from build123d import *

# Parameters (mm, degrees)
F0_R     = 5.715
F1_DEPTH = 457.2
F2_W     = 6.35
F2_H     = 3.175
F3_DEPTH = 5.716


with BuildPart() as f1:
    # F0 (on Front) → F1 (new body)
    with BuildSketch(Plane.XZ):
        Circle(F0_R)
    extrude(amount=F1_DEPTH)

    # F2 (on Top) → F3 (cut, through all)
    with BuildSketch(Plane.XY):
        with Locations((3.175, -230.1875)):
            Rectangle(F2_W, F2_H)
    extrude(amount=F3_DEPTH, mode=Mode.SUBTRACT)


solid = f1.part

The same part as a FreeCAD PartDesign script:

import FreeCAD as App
import Part
import Sketcher
Q = App.Units.Quantity


def add_polygon(sketch, points):
    """Adds a closed chain of lines whose ends are joined by coincident constraints."""
    first, n = sketch.GeometryCount, len(points)
    for a, b in zip(points, points[1:] + points[:1]):
        sketch.addGeometry(Part.LineSegment(App.Vector(*a, 0), App.Vector(*b, 0)), False)
    for i in range(n):
        sketch.addConstraint(Sketcher.Constraint("Coincident", first + i, 2, first + (i + 1) % n, 1))

doc = App.newDocument("Part")
body = doc.addObject("PartDesign::Body", "Body")

sketch1 = doc.addObject("Sketcher::SketchObject", "Sketch")
body.addObject(sketch1)
sketch1.AttachmentSupport = (doc.XZ_Plane, [""])
sketch1.MapMode = "FlatFace"
sketch1.addGeometry(Part.Circle(App.Vector(0, 0, 0), App.Vector(0, 0, 1), 5.715), False)
sketch1.addConstraint([
    Sketcher.Constraint("Coincident", 0, 3, -1, 1),
    Sketcher.Constraint("Diameter", 0, Q("0.45 in")),
])
pad1 = doc.addObject("PartDesign::Pad", "Pad")
body.addObject(pad1)
pad1.Profile = sketch1
pad1.Length = Q("18 in")

sketch2 = doc.addObject("Sketcher::SketchObject", "Sketch001")
body.addObject(sketch2)
sketch2.AttachmentSupport = (doc.XY_Plane, [""])
sketch2.MapMode = "FlatFace"
add_polygon(sketch2, [(0, -228.6), (0, -231.775), (6.35, -231.775), (6.35, -228.6)])
sketch2.addConstraint([
    Sketcher.Constraint("Vertical", 0),
    Sketcher.Constraint("Horizontal", 1),
    Sketcher.Constraint("Vertical", 2),
    Sketcher.Constraint("Horizontal", 3),
    Sketcher.Constraint("PointOnObject", 0, 2, -2),
    Sketcher.Constraint("DistanceY", 2, 2, -1, 1, Q("9 in")),
    Sketcher.Constraint("DistanceX", 1, 1, 1, 2, Q("0.25 in")),
    Sketcher.Constraint("DistanceY", 0, 2, 0, 1, Q("0.125 in")),
])
pocket1 = doc.addObject("PartDesign::Pocket", "Pocket")
body.addObject(pocket1)
pocket1.Profile = sketch2
pocket1.Type = "ThroughAll"
pocket1.Reversed = True

doc.recompute()
